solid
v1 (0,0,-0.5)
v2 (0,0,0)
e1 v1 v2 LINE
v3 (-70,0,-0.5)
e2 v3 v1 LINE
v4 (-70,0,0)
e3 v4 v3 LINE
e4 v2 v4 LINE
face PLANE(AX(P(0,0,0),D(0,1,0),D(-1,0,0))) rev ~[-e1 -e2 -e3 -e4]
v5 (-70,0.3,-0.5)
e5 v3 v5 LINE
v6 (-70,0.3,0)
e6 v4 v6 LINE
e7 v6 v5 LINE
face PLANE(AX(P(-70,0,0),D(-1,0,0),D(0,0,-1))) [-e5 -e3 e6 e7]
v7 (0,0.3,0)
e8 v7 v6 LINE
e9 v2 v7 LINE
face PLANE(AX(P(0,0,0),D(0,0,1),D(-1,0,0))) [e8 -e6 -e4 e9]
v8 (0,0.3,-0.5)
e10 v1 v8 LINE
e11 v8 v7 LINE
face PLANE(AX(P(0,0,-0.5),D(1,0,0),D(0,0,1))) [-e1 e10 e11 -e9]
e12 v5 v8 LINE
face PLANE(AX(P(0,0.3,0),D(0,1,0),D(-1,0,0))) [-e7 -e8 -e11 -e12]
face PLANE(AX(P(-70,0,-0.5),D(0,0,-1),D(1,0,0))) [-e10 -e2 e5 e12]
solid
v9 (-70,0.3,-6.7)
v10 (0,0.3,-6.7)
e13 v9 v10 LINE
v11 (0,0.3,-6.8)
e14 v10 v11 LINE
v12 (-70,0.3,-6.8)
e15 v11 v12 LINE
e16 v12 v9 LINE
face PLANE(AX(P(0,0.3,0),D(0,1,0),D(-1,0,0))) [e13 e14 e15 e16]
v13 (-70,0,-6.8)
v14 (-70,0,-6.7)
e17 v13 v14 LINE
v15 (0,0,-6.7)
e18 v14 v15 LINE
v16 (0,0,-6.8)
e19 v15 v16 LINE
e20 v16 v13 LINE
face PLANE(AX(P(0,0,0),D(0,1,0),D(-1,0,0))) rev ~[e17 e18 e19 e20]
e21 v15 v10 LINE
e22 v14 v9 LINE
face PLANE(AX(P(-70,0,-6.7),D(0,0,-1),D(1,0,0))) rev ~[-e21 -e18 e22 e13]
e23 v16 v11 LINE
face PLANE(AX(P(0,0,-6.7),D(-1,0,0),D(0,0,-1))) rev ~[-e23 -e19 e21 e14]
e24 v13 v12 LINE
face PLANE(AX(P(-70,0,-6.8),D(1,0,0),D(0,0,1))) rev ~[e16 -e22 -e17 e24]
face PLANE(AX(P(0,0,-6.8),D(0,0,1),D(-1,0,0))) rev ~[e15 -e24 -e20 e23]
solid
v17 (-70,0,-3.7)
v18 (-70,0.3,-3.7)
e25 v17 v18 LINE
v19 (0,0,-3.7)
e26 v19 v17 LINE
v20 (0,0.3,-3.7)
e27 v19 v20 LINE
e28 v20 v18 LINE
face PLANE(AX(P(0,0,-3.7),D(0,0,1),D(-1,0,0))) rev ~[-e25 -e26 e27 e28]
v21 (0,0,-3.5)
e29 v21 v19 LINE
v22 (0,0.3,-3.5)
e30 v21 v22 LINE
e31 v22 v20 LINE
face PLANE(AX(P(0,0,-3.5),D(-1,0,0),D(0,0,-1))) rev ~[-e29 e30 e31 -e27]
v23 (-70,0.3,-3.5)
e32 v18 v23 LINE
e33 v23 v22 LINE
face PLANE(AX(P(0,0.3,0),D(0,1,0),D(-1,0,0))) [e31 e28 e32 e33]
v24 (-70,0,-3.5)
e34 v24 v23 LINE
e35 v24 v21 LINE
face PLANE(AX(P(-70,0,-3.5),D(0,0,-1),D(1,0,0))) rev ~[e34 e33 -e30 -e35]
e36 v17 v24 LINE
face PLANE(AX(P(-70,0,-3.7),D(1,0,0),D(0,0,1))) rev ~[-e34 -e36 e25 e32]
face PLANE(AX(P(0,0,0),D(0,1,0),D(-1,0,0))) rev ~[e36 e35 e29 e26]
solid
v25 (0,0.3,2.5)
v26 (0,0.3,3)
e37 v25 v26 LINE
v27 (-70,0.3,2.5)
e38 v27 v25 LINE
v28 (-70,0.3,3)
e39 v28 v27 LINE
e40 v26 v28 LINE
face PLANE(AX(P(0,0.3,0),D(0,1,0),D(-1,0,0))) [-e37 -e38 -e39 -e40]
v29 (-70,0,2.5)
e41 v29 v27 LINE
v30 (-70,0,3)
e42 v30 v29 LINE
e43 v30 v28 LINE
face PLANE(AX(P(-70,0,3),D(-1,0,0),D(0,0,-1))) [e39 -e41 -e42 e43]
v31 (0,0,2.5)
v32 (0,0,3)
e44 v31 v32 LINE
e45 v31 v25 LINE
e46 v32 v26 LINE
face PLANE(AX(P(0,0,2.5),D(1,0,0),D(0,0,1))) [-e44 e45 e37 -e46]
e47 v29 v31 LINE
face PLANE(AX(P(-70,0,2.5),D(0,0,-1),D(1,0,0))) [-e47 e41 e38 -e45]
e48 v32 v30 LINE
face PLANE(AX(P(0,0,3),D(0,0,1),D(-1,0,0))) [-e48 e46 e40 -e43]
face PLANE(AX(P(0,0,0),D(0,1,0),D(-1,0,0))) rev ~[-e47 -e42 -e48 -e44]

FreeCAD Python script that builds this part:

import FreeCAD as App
import Part
import Sketcher

V = App.Vector


def add_polygon(sketch, points):
    """Adds a closed chain of lines whose ends are joined by coincident constraints."""
    first, n = sketch.GeometryCount, len(points)
    for a, b in zip(points, points[1:] + points[:1]):
        sketch.addGeometry(Part.LineSegment(App.Vector(*a, 0), App.Vector(*b, 0)), False)
    for i in range(n):
        sketch.addConstraint(Sketcher.Constraint("Coincident", first + i, 2, first + (i + 1) % n, 1))

doc = App.newDocument("Part")
body = doc.addObject("PartDesign::Body", "Body")
body.AllowCompound = True

sketch1 = body.newObject("Sketcher::SketchObject", "Sketch")
sketch1.AttachmentSupport = (doc.getObject("XZ_Plane"), [""])
sketch1.MapMode = "FlatFace"
add_polygon(sketch1, [(-70, 0), (0, 0), (0, -0.5), (-70, -0.5)])
add_polygon(sketch1, [(-70, -3.7), (-70, -3.5), (0, -3.5), (0, -3.7)])
add_polygon(sketch1, [(-70, -6.8), (-70, -6.7), (0, -6.7), (0, -6.8)])
add_polygon(sketch1, [(-70, 3), (0, 3), (0, 2.5), (-70, 2.5)])
sketch1.addConstraint([
    Sketcher.Constraint("Horizontal", 0),
    Sketcher.Constraint("Vertical", 1),
    Sketcher.Constraint("Horizontal", 2),
    Sketcher.Constraint("Vertical", 3),
    Sketcher.Constraint("Vertical", 4),
    Sketcher.Constraint("Horizontal", 5),
    Sketcher.Constraint("Vertical", 6),
    Sketcher.Constraint("Horizontal", 7),
    Sketcher.Constraint("Vertical", 8),
    Sketcher.Constraint("Horizontal", 9),
    Sketcher.Constraint("Vertical", 10),
    Sketcher.Constraint("Horizontal", 11),
    Sketcher.Constraint("Horizontal", 12),
    Sketcher.Constraint("Vertical", 13),
    Sketcher.Constraint("Horizontal", 14),
    Sketcher.Constraint("Vertical", 15),
    Sketcher.Constraint("Coincident", 0, 2, -1, 1),
    Sketcher.Constraint("PointOnObject", 5, 2, -2),
    Sketcher.Constraint("PointOnObject", 9, 2, -2),
    Sketcher.Constraint("PointOnObject", 12, 2, -2),
    Sketcher.Constraint("Vertical", 3, 2, 4, 2),
    Sketcher.Constraint("Vertical", 7, 2, 8, 2),
    Sketcher.Constraint("Vertical", 11, 2, 14, 2),
    Sketcher.Constraint("Equal", 3, 13),
    Sketcher.Constraint("DistanceX", 0, 1, 0, 2, 70.0),
    Sketcher.Constraint("DistanceY", 1, 2, 1, 1, 0.5),
    Sketcher.Constraint("DistanceY", 4, 1, 4, 2, 0.2),
    Sketcher.Constraint("DistanceY", 8, 1, 8, 2, 0.1),
    Sketcher.Constraint("DistanceY", -1, 1, 12, 2, 3.0),
    Sketcher.Constraint("DistanceY", 4, 2, 2, 2, 3.0),
    Sketcher.Constraint("DistanceY", 8, 2, 7, 2, 3.0),
])
pad1 = body.newObject("PartDesign::Pad", "Pad")
pad1.Profile = sketch1
pad1.Length = 0.3
pad1.Reversed = True

doc.recompute()
